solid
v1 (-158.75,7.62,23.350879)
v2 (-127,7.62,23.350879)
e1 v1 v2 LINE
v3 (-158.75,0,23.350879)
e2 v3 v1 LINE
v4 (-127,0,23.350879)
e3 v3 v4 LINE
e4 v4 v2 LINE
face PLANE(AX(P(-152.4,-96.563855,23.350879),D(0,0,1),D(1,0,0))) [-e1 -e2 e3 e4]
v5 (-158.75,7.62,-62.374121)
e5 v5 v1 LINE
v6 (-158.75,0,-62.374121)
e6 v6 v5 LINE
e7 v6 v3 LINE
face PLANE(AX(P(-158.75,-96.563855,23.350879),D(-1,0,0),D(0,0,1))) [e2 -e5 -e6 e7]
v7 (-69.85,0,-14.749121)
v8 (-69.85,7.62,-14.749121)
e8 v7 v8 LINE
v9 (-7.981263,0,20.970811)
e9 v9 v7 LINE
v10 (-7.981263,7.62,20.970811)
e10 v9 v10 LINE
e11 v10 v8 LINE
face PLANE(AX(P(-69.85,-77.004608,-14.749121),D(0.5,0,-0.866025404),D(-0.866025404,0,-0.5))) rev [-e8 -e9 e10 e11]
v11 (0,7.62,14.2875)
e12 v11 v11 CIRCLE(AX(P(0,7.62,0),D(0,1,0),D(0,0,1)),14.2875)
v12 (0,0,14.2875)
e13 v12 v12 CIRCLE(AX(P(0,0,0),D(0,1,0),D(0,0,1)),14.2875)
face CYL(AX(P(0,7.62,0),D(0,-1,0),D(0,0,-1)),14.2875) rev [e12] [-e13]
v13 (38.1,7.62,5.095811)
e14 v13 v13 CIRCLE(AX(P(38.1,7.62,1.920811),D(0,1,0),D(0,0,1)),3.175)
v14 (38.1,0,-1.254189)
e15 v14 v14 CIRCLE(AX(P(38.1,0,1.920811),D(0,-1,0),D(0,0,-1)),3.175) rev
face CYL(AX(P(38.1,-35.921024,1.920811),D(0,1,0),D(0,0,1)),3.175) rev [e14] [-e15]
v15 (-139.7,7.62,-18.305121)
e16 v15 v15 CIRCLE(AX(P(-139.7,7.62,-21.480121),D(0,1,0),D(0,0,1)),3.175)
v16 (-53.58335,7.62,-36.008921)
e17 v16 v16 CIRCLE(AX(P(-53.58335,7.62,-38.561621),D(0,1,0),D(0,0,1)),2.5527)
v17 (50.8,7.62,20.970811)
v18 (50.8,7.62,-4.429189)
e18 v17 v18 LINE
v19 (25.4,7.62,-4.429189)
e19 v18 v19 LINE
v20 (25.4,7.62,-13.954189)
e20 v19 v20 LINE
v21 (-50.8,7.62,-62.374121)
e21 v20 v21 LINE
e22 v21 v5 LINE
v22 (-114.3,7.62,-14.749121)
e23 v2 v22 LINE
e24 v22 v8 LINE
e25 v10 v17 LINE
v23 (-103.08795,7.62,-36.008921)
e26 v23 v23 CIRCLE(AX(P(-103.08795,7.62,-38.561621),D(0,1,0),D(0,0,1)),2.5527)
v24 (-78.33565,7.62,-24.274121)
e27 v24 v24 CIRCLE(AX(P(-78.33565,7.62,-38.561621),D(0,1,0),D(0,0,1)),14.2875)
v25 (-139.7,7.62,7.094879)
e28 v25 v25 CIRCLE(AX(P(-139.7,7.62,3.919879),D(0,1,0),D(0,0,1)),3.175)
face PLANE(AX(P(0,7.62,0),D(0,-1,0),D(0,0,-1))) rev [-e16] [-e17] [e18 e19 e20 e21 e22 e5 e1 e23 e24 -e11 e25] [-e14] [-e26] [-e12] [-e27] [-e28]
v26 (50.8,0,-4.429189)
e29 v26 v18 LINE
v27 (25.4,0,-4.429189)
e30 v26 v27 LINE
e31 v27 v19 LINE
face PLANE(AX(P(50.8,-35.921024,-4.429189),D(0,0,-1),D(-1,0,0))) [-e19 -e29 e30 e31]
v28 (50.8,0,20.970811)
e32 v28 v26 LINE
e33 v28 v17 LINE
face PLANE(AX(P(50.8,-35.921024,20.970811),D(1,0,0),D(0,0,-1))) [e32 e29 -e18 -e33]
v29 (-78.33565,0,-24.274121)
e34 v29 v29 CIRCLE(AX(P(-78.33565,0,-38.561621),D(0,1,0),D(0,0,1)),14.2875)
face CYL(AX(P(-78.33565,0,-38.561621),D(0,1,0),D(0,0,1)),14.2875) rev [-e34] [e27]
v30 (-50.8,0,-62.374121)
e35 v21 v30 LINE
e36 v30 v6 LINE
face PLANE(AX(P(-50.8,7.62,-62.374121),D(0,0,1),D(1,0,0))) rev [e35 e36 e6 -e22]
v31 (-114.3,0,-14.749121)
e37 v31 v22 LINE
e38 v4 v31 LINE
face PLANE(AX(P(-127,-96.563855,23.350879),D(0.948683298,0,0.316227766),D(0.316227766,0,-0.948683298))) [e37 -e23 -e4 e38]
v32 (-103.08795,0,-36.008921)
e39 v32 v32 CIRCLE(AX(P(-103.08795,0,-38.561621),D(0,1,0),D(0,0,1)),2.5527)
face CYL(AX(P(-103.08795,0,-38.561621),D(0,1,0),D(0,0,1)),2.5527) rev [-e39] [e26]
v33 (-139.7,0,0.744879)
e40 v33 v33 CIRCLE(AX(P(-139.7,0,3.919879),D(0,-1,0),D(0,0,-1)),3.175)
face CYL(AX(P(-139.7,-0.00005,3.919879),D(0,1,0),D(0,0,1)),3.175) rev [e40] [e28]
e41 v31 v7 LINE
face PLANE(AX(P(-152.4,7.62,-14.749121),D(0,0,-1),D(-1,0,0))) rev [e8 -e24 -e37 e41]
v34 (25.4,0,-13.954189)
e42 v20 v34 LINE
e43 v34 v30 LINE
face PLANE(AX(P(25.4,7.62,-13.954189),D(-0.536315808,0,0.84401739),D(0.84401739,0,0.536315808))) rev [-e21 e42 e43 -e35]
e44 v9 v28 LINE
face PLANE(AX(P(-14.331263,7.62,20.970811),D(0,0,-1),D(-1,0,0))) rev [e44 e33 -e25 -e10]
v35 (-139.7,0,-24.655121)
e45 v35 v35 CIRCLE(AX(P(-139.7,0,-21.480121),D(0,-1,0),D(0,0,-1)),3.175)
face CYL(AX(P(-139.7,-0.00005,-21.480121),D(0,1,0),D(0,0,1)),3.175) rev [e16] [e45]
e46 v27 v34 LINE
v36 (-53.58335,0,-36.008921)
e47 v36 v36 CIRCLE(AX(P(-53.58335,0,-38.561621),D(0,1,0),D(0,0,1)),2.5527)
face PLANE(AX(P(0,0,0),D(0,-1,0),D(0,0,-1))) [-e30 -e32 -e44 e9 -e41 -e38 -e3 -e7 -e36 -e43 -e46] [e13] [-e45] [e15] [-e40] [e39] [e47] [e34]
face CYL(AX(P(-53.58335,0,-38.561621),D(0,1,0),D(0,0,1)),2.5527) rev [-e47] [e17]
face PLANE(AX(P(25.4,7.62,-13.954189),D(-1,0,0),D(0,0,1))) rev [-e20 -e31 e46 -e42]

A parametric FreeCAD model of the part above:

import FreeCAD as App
import Part
import Sketcher
from FreeCAD import Vector
Q = App.Units.Quantity


def add_polygon(sketch, points):
    """Adds a closed chain of lines whose ends are joined by coincident constraints."""
    first, n = sketch.GeometryCount, len(points)
    for a, b in zip(points, points[1:] + points[:1]):
        sketch.addGeometry(Part.LineSegment(App.Vector(*a, 0), App.Vector(*b, 0)), False)
    for i in range(n):
        sketch.addConstraint(Sketcher.Constraint("Coincident", first + i, 2, first + (i + 1) % n, 1))

doc = App.newDocument("Part")
body = doc.addObject("PartDesign::Body", "Body")

# Sketch on XZ plane
sketch1 = body.newObject("Sketcher::SketchObject", "Sketch")
sketch1.AttachmentSupport = (doc.getObject("XZ_Plane"), [""])
sketch1.MapMode = "FlatFace"
add_polygon(sketch1, [(-76, -15), (-14, 21), (25, 21), (25, -14), (-51, -62), (-152, -62), (-152, -15)])  # lines 0-6
sketch1.addGeometry(Part.Circle(Vector(0, 0, 0), Vector(0, 0, 1), 14), False)  # 7
sketch1.addConstraint([
    Sketcher.Constraint("Horizontal", 1),
    Sketcher.Constraint("Vertical", 2),
    Sketcher.Constraint("Horizontal", 4),
    Sketcher.Constraint("Vertical", 5),
    Sketcher.Constraint("Horizontal", 6),
    Sketcher.Constraint("Coincident", 7, 3, -1, 1),
    Sketcher.Constraint("DistanceX", 4, 2, 4, 1, Q("4 in")),
    Sketcher.Constraint("DistanceX", 6, 1, 6, 2, Q("3 in")),
    Sketcher.Constraint("Diameter", 7, Q("1.125 in")),
    Sketcher.Constraint("DistanceX", -1, 1, 1, 2, Q("1 in")),
    Sketcher.Constraint("DistanceX", 3, 2, -1, 1, Q("2 in")),
    Sketcher.Constraint("Angle", 0, Q("30 deg")),
    Sketcher.Constraint("DistanceY", 2, 2, 2, 1, Q("1.375 in")),
    Sketcher.Constraint("DistanceY", 5, 1, 5, 2, Q("1.875 in")),
    Sketcher.Constraint("Distance", 3, Q("90.2825 mm")),
    Sketcher.Constraint("DistanceY", -1, 1, 0, 2, Q("20.970811 mm")),
])
pad1 = body.newObject("PartDesign::Pad", "Pad")
pad1.Profile = sketch1
pad1.Length = Q("0.3 in")
pad1.Reversed = True

# Sketch on XZ plane
sketch2 = body.newObject("Sketcher::SketchObject", "Sketch001")
sketch2.AttachmentSupport = (doc.getObject("XZ_Plane"), [""])
sketch2.MapMode = "FlatFace"
sketch2.AttachmentOffset = App.Placement(Vector(0, 0, -0.3 * 25.4), App.Rotation())
sketch2.addGeometry([
    Part.Circle(Vector(-78.3, -38.6, 0), Vector(0, 0, 1), 14.3),
    Part.Circle(Vector(-103.1, -38.6, 0), Vector(0, 0, 1), 2.6),
    Part.Circle(Vector(-53.6, -38.6, 0), Vector(0, 0, 1), 2.6),
], False)
sketch2.addConstraint([
    Sketcher.Constraint("Equal", 1, 2),
    Sketcher.Constraint("Horizontal", 0, 3, 1, 3),
    Sketcher.Constraint("Horizontal", 1, 3, 2, 3),
    Sketcher.Constraint("Diameter", 0, Q("1.125 in")),
    Sketcher.Constraint("Diameter", 1, Q("0.201 in")),
    Sketcher.Constraint("DistanceX", 1, 3, 2, 3, Q("1.949 in")),
    Sketcher.Constraint("DistanceX", 1, 3, 0, 3, Q("0.9745 in")),
    Sketcher.Constraint("DistanceX", 0, 3, -1, 1, Q("78.33565 mm")),
    Sketcher.Constraint("DistanceY", 0, 3, -1, 1, Q("38.561621 mm")),
])
pocket1 = body.newObject("PartDesign::Pocket", "Pocket")
pocket1.Profile = sketch2
pocket1.Type = "ThroughAll"
pocket1.Reversed = True

# Sketch on XZ plane
sketch3 = body.newObject("Sketcher::SketchObject", "Sketch002")
sketch3.AttachmentSupport = (doc.getObject("XZ_Plane"), [""])
sketch3.MapMode = "FlatFace"
sketch3.AttachmentOffset = App.Placement(Vector(0, 0, -0.3 * 25.4), App.Rotation())
add_polygon(sketch3, [(25.4, -4.4), (25.4, 21), (50.8, 21), (50.8, -4.4)])  # lines 0-3
sketch3.addGeometry(Part.Circle(Vector(38.1, 1.9, 0), Vector(0, 0, 1), 3.2), False)  # 4
sketch3.addConstraint([
    Sketcher.Constraint("Vertical", 0),
    Sketcher.Constraint("Horizontal", 1),
    Sketcher.Constraint("Vertical", 2),
    Sketcher.Constraint("Horizontal", 3),
    Sketcher.Constraint("Equal", 3, 0),
    Sketcher.Constraint("Diameter", 4, Q("0.25 in")),
    Sketcher.Constraint("DistanceX", 1, 1, 1, 2, Q("1 in")),
    Sketcher.Constraint("DistanceX", -1, 1, 0, 2, Q("1 in")),
    Sketcher.Constraint("DistanceX", -1, 1, 4, 3, Q("1.5 in")),
    Sketcher.Constraint("DistanceY", 4, 3, 0, 2, Q("0.75 in")),
    Sketcher.Constraint("DistanceY", -1, 1, 4, 3, Q("1.920811 mm")),
])
pad2 = body.newObject("PartDesign::Pad", "Pad001")
pad2.Profile = sketch3
pad2.Length = Q("0.3 in")

# Sketch on XZ plane
sketch4 = body.newObject("Sketcher::SketchObject", "Sketch003")
sketch4.AttachmentSupport = (doc.getObject("XZ_Plane"), [""])
sketch4.MapMode = "FlatFace"
sketch4.AttachmentOffset = App.Placement(Vector(0, 0, -0.3 * 25.4), App.Rotation())
add_polygon(sketch4, [(-127, 23), (-114, -15), (-152, -15), (-152, -62), (-159, -62), (-159, 23)])  # lines 0-5
sketch4.addConstraint([
    Sketcher.Constraint("Horizontal", 1),
    Sketcher.Constraint("Vertical", 2),
    Sketcher.Constraint("Horizontal", 3),
    Sketcher.Constraint("Vertical", 4),
    Sketcher.Constraint("Horizontal", 5),
    Sketcher.Constraint("DistanceX", 1, 2, 1, 1, Q("1.5 in")),
    Sketcher.Constraint("DistanceX", 1, 2, -1, 1, Q("6 in")),
    Sketcher.Constraint("DistanceX", 5, 2, -1, 1, Q("5 in")),
    Sketcher.Constraint("DistanceX", 3, 2, 3, 1, Q("0.25 in")),
    Sketcher.Constraint("DistanceY", 1, 2, 4, 2, Q("1.5 in")),
    Sketcher.Constraint("DistanceY", 2, 2, 2, 1, Q("1.875 in")),
    Sketcher.Constraint("DistanceY", 0, 2, -1, 1, Q("14.749121 mm")),
])
pad3 = body.newObject("PartDesign::Pad", "Pad002")
pad3.Profile = sketch4
pad3.Length = Q("0.3 in")

# Sketch on XZ plane
sketch5 = body.newObject("Sketcher::SketchObject", "Sketch004")
sketch5.AttachmentSupport = (doc.getObject("XZ_Plane"), [""])
sketch5.MapMode = "FlatFace"
sketch5.AttachmentOffset = App.Placement(Vector(0, 0, -0.3 * 25.4), App.Rotation())
sketch5.addGeometry([
    Part.Circle(Vector(-139.7, -21.5, 0), Vector(0, 0, 1), 3.2),
    Part.Circle(Vector(-139.7, 3.9, 0), Vector(0, 0, 1), 3.2),
], False)
sketch5.addConstraint([
    Sketcher.Constraint("Equal", 0, 1),
    Sketcher.Constraint("Vertical", 0, 3, 1, 3),
    Sketcher.Constraint("Diameter", 0, Q("0.25 in")),
    Sketcher.Constraint("DistanceY", 0, 3, 1, 3, Q("1 in")),
    Sketcher.Constraint("DistanceX", 0, 3, -1, 1, Q("5.5 in")),
    Sketcher.Constraint("DistanceY", 0, 3, -1, 1, Q("21.480121 mm")),
])
pocket2 = body.newObject("PartDesign::Pocket", "Pocket001")
pocket2.Profile = sketch5
pocket2.Type = "ThroughAll"
pocket2.Reversed = True

# Sketch on XZ plane
sketch6 = body.newObject("Sketcher::SketchObject", "Sketch005")
sketch6.AttachmentSupport = (doc.getObject("XZ_Plane"), [""])
sketch6.MapMode = "FlatFace"
sketch6.AttachmentOffset = App.Placement(Vector(0, 0, -0.3 * 25.4), App.Rotation())
add_polygon(sketch6, [(-70, -15), (-76, -15), (-14, 21), (-8, 21)])  # lines 0-3
sketch6.addConstraint([
    Sketcher.Constraint("Horizontal", 0),
    Sketcher.Constraint("Horizontal", 2),
    Sketcher.Constraint("Parallel", 1, 3),
    Sketcher.Constraint("DistanceX", 0, 2, -1, 1, Q("3 in")),
    Sketcher.Constraint("Angle", 1, Q("30 deg")),
    Sketcher.Constraint("DistanceX", 0, 2, 0, 1, Q("0.25 in")),
    Sketcher.Constraint("DistanceY", 0, 2, -1, 1, Q("14.749121 mm")),
    Sketcher.Constraint("DistanceY", -1, 1, 1, 2, Q("20.970811 mm")),
])
pocket3 = body.newObject("PartDesign::Pocket", "Pocket002")
pocket3.Profile = sketch6
pocket3.Length = Q("0.3 in")
pocket3.Reversed = True

doc.recompute()
